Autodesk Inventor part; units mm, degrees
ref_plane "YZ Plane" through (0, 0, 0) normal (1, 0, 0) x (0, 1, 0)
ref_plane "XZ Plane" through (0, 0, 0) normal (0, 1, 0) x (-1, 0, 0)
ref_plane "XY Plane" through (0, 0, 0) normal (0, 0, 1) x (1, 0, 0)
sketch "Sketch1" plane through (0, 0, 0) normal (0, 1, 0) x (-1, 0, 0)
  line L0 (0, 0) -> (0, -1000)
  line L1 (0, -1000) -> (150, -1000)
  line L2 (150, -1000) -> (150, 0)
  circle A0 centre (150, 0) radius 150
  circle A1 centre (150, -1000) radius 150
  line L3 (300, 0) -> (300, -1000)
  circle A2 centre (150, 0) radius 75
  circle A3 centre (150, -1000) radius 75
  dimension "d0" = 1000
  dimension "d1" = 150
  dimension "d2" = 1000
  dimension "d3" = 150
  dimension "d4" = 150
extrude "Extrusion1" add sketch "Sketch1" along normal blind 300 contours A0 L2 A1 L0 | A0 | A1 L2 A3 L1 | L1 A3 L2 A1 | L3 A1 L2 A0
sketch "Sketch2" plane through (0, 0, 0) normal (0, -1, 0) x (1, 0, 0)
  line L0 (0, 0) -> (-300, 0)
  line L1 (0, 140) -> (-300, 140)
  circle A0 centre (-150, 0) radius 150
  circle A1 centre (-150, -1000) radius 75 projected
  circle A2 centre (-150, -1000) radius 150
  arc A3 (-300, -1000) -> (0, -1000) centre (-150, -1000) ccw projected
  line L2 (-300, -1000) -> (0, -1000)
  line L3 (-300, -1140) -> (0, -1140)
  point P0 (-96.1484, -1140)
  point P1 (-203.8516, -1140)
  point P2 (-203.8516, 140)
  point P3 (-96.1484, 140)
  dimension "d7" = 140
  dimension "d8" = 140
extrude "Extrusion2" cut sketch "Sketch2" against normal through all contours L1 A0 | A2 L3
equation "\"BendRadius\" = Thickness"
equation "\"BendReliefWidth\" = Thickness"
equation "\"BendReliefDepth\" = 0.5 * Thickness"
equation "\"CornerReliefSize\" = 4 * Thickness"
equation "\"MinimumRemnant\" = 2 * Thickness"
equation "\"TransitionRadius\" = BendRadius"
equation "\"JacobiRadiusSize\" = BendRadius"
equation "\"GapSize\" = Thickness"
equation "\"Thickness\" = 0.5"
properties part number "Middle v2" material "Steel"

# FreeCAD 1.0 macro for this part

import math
import FreeCAD as App
import Part
import Sketcher
from FreeCAD import Vector

doc = App.newDocument("Part")
body = doc.addObject("PartDesign::Body", "Body")

sketch1 = body.newObject("Sketcher::SketchObject", "Sketch")
sketch1.AttachmentSupport = (doc.getObject("XZ_Plane"), [""])
sketch1.MapMode = "FlatFace"
sketch1.addGeometry(Part.LineSegment(Vector(0, 0, 0), Vector(0, -1000, 0)), False)
sketch1.addGeometry(Part.ArcOfCircle(Part.Circle(Vector(-150, -1000, 0), Vector(0, 0, 1), 150), math.radians(180), math.radians(360)), False)
sketch1.addGeometry(Part.LineSegment(Vector(-300, -1000, 0), Vector(-300, 0, 0)), False)
sketch1.addGeometry(Part.ArcOfCircle(Part.Circle(Vector(-150, 0, 0), Vector(0, 0, 1), 150), math.radians(0), math.radians(180)), False)
sketch1.addGeometry(Part.Circle(Vector(-150, 0, 0), Vector(0, 0, 1), 75), False)
sketch1.addGeometry(Part.Circle(Vector(-150, -1000, 0), Vector(0, 0, 1), 75), False)
sketch1.addConstraint(Sketcher.Constraint("Tangent", 0, 2, 1, 2))
sketch1.addConstraint(Sketcher.Constraint("Tangent", 1, 1, 2, 1))
sketch1.addConstraint(Sketcher.Constraint("Tangent", 2, 2, 3, 2))
sketch1.addConstraint(Sketcher.Constraint("Tangent", 3, 1, 0, 1))
sketch1.addConstraint(Sketcher.Constraint("Vertical", 0))
sketch1.addConstraint(Sketcher.Constraint("Vertical", 2))
sketch1.addConstraint(Sketcher.Constraint("Coincident", 3, 1, -1, 1))
sketch1.addConstraint(Sketcher.Constraint("Coincident", 4, 3, 3, 3))
sketch1.addConstraint(Sketcher.Constraint("Coincident", 5, 3, 1, 3))
sketch1.addConstraint(Sketcher.Constraint("Equal", 4, 5))
sketch1.addConstraint(Sketcher.Constraint("Diameter", 4, 150.0))
sketch1.addConstraint(Sketcher.Constraint("Radius", 1, 150.0))
sketch1.addConstraint(Sketcher.Constraint("DistanceY", 0, 2, 0, 1, 1000.0))
pad1 = body.newObject("PartDesign::Pad", "Pad")
pad1.Profile = sketch1
pad1.Length = 300
pad1.Reversed = True

sketch2 = body.newObject("Sketcher::SketchObject", "Sketch001")
sketch2.AttachmentSupport = (doc.getObject("XZ_Plane"), [""])
sketch2.MapMode = "FlatFace"
sketch2.addGeometry(Part.LineSegment(Vector(-204, 140, 0), Vector(-96, 140, 0)), False)
sketch2.addGeometry(Part.ArcOfCircle(Part.Circle(Vector(-150, 0, 0), Vector(0, 0, 1), 150), math.radians(69), math.radians(111)), False)
sketch2.addGeometry(Part.ArcOfCircle(Part.Circle(Vector(-150, -1000, 0), Vector(0, 0, 1), 150), math.radians(-111), math.radians(-69)), False)
sketch2.addGeometry(Part.LineSegment(Vector(-96, -1140, 0), Vector(-204, -1140, 0)), False)
sketch2.addConstraint(Sketcher.Constraint("Coincident", 0, 1, 1, 2))
sketch2.addConstraint(Sketcher.Constraint("Coincident", 1, 1, 0, 2))
sketch2.addConstraint(Sketcher.Constraint("Coincident", 2, 1, 3, 2))
sketch2.addConstraint(Sketcher.Constraint("Coincident", 3, 1, 2, 2))
sketch2.addConstraint(Sketcher.Constraint("Horizontal", 0))
sketch2.addConstraint(Sketcher.Constraint("Horizontal", 3))
sketch2.addConstraint(Sketcher.Constraint("Equal", 1, 2))
sketch2.addConstraint(Sketcher.Constraint("PointOnObject", 1, 3, -1))
sketch2.addConstraint(Sketcher.Constraint("Vertical", 1, 3, 2, 3))
sketch2.addConstraint(Sketcher.Constraint("Vertical", 0, 1, 2, 1))
sketch2.addConstraint(Sketcher.Constraint("DistanceY", -1, 1, 0, 1, 140.0))
sketch2.addConstraint(Sketcher.Constraint("Radius", 1, 150.0))
sketch2.addConstraint(Sketcher.Constraint("DistanceX", 1, 3, -1, 1, 150.0))
sketch2.addConstraint(Sketcher.Constraint("DistanceY", 2, 3, -1, 1, 1000.0))
pocket1 = body.newObject("PartDesign::Pocket", "Pocket")
pocket1.Profile = sketch2
pocket1.Type = "ThroughAll"

doc.recompute()
